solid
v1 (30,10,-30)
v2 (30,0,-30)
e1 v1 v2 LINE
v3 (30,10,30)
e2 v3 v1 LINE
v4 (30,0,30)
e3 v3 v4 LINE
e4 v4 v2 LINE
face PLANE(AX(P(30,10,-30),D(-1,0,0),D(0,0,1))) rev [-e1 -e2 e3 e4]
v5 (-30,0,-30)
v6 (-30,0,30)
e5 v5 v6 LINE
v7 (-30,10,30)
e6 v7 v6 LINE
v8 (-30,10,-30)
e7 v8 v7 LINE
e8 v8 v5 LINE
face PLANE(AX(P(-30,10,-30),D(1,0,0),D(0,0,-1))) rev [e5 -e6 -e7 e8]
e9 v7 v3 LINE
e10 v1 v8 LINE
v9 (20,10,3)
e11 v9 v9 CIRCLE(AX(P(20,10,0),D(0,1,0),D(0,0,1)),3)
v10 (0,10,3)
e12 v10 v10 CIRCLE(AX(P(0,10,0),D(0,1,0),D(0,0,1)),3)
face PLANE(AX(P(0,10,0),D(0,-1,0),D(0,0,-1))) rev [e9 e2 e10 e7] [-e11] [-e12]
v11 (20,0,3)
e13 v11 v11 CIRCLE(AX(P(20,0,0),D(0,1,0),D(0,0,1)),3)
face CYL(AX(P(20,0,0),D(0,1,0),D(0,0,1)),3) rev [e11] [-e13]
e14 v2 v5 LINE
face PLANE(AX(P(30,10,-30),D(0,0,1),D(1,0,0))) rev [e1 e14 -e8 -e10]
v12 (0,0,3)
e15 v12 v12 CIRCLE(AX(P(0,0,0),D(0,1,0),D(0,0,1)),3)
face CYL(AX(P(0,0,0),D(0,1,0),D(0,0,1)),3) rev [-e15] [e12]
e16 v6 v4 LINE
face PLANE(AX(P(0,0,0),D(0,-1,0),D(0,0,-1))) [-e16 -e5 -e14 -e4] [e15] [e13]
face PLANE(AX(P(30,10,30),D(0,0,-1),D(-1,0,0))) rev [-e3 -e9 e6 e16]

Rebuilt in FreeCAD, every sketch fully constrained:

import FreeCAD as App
import Part
import Sketcher


def add_polygon(sketch, points):
    """Adds a closed chain of lines whose ends are joined by coincident constraints."""
    first, n = sketch.GeometryCount, len(points)
    for a, b in zip(points, points[1:] + points[:1]):
        sketch.addGeometry(Part.LineSegment(App.Vector(*a, 0), App.Vector(*b, 0)), False)
    for i in range(n):
        sketch.addConstraint(Sketcher.Constraint("Coincident", first + i, 2, first + (i + 1) % n, 1))

doc = App.newDocument("Part")
body = doc.addObject("PartDesign::Body", "Body")

# Sketch on XZ plane
sketch1 = doc.addObject("Sketcher::SketchObject", "Sketch")
body.addObject(sketch1)
sketch1.AttachmentSupport = (doc.XZ_Plane, [""])
sketch1.MapMode = "FlatFace"
add_polygon(sketch1, [(-30, -30), (-30, 30), (30, 30), (30, -30)])  # lines 0-3
sketch1.addConstraint([
    Sketcher.Constraint("Vertical", 0),
    Sketcher.Constraint("Horizontal", 1),
    Sketcher.Constraint("Vertical", 2),
    Sketcher.Constraint("Horizontal", 3),
    Sketcher.Constraint("Symmetric", 0, 2, 2, 2, -1, 1),
    Sketcher.Constraint("Equal", 3, 0),
    Sketcher.Constraint("DistanceX", 1, 1, 1, 2, 60.0),
])
pad1 = doc.addObject("PartDesign::Pad", "Pad")
body.addObject(pad1)
pad1.Profile = sketch1
pad1.Length = 10
pad1.Reversed = True

# Sketch on XZ plane
sketch2 = doc.addObject("Sketcher::SketchObject", "Sketch001")
body.addObject(sketch2)
sketch2.AttachmentSupport = (doc.XZ_Plane, [""])
sketch2.MapMode = "FlatFace"
sketch2.AttachmentOffset = App.Placement(App.Vector(0, 0, -10), App.Rotation())
sketch2.addGeometry([
    Part.Circle(App.Vector(20, 0, 0), App.Vector(0, 0, 1), 3),
    Part.Circle(App.Vector(0, 0, 0), App.Vector(0, 0, 1), 3),
], False)
sketch2.addConstraint([
    Sketcher.Constraint("Coincident", 1, 3, -1, 1),
    Sketcher.Constraint("Equal", 0, 1),
    Sketcher.Constraint("PointOnObject", 0, 3, -1),
    Sketcher.Constraint("Diameter", 0, 6.0),
    Sketcher.Constraint("DistanceX", -1, 1, 0, 3, 20.0),
])
pocket1 = doc.addObject("PartDesign::Pocket", "Pocket")
body.addObject(pocket1)
pocket1.Profile = sketch2
pocket1.Type = "ThroughAll"
pocket1.Reversed = True

doc.recompute()
